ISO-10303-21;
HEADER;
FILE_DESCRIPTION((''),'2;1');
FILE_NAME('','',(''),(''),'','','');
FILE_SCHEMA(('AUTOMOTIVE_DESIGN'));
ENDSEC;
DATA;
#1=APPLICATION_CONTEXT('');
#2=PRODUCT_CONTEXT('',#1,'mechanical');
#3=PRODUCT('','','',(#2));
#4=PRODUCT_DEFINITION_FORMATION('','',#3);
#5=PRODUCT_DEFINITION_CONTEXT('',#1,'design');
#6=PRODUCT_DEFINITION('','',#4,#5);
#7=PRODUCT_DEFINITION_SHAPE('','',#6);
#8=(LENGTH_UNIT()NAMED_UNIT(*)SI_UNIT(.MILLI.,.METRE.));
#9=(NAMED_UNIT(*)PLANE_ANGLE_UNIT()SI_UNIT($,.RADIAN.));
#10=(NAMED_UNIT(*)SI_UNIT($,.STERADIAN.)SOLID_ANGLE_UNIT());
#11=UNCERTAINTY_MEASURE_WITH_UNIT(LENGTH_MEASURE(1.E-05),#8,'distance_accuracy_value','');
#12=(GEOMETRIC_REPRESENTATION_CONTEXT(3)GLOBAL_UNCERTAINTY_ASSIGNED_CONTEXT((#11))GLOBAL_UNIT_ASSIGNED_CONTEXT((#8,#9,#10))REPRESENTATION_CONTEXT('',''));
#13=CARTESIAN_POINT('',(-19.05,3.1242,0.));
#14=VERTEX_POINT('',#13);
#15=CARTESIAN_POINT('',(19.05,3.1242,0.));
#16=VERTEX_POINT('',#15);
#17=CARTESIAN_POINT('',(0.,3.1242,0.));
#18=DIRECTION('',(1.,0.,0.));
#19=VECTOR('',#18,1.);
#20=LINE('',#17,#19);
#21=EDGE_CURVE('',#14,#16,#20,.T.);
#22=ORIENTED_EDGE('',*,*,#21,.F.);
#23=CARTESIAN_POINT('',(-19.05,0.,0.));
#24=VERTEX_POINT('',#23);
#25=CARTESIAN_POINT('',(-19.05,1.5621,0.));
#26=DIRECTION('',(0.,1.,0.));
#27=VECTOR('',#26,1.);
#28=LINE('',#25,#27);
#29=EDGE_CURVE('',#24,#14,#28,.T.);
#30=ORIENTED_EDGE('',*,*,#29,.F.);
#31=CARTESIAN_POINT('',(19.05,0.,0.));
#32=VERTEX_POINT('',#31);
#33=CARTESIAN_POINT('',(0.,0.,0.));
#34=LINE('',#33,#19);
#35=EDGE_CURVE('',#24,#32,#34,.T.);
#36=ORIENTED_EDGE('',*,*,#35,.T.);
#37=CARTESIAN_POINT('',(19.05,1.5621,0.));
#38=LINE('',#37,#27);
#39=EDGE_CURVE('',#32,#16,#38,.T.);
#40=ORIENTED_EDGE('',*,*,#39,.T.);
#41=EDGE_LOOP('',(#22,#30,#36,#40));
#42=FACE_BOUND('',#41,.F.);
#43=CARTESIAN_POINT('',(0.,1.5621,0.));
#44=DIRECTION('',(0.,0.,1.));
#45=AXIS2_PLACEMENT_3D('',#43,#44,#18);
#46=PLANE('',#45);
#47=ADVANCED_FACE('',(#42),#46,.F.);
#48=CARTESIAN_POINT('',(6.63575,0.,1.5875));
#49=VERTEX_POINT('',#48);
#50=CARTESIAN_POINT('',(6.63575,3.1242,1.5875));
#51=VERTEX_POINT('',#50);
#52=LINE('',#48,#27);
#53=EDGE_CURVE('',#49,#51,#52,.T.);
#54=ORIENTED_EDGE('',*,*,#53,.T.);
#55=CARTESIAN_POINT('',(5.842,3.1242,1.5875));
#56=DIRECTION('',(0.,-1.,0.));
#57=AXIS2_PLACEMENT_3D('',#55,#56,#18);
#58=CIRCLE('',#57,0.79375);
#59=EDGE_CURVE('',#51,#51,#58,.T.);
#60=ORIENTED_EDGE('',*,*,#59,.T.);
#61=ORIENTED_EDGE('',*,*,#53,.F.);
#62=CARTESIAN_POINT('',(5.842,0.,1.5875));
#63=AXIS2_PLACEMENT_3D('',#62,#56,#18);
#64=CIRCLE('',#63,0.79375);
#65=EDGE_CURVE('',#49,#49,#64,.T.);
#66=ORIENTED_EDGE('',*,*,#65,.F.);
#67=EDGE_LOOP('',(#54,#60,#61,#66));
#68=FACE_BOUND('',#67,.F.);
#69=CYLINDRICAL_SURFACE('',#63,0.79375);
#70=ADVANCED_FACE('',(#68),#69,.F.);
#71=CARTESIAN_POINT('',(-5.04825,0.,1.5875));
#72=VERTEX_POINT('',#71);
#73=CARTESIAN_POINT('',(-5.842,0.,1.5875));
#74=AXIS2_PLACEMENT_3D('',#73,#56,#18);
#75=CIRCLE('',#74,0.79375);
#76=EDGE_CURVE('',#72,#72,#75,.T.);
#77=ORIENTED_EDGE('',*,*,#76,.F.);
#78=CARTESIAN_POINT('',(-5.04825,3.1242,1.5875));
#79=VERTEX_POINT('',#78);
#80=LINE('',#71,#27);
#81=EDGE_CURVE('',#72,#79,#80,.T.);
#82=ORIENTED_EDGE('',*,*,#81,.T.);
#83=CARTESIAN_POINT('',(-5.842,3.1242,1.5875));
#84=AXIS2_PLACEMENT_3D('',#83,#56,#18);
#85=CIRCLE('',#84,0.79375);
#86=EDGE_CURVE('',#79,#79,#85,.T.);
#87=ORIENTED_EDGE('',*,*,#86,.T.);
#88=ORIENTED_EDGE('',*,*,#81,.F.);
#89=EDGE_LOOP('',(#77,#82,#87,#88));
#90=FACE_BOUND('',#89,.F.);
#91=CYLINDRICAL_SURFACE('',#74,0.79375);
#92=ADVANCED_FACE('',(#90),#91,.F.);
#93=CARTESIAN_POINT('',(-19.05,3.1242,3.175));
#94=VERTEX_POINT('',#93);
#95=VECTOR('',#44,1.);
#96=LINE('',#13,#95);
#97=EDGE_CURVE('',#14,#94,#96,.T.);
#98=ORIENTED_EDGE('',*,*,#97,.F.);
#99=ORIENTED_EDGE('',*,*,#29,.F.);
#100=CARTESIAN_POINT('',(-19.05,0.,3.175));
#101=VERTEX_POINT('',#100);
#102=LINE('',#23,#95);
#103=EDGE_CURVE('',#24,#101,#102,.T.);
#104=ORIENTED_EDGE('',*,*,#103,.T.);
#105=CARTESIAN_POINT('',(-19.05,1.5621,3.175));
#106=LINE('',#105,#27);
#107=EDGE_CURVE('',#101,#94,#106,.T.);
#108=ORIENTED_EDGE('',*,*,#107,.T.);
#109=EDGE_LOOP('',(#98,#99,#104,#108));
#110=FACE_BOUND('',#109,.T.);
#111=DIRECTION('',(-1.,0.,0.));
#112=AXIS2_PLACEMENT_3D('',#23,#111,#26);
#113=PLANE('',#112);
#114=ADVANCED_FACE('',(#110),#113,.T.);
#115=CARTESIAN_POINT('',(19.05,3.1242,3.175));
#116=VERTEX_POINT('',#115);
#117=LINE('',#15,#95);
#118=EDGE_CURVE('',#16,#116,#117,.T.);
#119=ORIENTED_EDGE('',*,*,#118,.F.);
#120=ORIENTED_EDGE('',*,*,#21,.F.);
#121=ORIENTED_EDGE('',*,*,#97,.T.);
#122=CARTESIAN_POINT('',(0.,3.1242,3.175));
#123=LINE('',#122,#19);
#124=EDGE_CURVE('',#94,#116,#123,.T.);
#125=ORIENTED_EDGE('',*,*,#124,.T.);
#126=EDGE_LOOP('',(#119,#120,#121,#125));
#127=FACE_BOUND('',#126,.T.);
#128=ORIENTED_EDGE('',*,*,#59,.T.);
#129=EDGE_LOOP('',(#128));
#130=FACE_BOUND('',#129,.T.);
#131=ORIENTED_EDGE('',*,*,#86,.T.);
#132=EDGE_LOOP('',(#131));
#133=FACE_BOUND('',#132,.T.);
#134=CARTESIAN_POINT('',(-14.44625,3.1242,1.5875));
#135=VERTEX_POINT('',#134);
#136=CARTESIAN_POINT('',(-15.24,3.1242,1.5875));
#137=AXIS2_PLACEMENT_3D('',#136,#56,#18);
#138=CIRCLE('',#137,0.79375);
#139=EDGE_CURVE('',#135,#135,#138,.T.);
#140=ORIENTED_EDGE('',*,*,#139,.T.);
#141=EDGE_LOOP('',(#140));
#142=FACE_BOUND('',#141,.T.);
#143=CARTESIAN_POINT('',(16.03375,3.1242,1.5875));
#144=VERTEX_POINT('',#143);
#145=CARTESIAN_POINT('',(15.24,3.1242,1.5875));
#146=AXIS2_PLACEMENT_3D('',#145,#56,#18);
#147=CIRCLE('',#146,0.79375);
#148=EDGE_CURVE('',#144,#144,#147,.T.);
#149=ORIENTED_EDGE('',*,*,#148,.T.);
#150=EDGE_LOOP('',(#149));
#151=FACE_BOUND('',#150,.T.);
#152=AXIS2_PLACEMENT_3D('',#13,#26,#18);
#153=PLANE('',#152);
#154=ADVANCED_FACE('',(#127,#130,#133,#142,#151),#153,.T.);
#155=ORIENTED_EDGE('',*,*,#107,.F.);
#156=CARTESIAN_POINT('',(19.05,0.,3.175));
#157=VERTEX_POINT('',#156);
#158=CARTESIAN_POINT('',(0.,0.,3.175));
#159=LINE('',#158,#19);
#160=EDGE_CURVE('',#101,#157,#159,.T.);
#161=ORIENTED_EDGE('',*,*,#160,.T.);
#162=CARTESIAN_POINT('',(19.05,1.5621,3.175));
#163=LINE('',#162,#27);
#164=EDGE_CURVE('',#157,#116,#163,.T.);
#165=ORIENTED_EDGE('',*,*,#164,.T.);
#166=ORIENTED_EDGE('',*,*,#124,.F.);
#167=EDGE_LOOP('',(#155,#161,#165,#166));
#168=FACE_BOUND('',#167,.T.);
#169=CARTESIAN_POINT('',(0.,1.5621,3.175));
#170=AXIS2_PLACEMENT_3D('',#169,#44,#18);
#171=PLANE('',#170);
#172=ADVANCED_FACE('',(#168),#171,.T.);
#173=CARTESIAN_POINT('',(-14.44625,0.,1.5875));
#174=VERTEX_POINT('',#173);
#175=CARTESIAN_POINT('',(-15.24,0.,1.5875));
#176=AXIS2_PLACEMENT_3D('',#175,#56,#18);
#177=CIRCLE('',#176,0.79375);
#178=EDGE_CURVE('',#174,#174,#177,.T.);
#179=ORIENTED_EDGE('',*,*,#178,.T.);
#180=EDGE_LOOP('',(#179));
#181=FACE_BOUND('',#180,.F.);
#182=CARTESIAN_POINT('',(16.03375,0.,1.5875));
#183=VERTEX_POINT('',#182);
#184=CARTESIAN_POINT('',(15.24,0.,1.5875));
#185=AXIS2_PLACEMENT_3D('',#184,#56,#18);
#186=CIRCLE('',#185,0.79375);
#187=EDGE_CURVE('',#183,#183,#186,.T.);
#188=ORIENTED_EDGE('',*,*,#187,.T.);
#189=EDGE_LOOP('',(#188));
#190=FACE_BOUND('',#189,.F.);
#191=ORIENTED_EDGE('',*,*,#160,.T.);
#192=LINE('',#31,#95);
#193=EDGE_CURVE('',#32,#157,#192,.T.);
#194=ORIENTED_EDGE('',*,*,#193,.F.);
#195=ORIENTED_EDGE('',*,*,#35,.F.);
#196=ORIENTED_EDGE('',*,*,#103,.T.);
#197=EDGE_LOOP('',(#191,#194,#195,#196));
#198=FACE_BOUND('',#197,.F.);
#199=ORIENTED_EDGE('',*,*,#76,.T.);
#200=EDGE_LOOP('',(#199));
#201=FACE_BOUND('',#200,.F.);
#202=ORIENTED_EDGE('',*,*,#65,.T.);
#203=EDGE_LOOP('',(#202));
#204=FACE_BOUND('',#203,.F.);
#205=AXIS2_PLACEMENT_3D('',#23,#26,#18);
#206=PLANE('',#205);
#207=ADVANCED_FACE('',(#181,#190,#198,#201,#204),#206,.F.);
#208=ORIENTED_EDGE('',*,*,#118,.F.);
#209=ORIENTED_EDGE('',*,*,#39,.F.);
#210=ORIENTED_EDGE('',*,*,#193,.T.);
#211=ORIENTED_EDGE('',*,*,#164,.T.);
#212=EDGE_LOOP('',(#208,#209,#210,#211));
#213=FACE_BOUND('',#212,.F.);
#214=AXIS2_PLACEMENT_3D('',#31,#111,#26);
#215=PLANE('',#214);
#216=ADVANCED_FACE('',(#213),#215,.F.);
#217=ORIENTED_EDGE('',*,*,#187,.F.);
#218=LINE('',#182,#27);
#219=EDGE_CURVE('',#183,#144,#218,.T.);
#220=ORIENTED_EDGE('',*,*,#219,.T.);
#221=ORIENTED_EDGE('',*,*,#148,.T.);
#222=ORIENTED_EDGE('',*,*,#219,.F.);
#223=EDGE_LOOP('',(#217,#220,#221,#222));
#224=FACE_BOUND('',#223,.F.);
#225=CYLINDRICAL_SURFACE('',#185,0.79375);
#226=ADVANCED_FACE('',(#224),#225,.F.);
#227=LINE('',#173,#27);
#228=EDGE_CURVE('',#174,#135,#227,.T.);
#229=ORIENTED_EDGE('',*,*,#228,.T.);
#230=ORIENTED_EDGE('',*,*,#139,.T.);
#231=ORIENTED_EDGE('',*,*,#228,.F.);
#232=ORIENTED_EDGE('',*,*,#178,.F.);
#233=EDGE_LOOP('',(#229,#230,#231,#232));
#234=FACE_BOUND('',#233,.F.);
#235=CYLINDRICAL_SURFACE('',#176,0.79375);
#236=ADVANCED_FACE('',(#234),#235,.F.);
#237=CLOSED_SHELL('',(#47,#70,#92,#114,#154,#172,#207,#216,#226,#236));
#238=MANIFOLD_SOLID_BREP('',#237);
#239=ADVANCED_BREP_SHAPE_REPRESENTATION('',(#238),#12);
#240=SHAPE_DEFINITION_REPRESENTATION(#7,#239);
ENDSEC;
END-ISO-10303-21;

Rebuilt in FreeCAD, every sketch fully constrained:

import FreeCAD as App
import Part
import Sketcher
Q = App.Units.Quantity

doc = App.newDocument("Part")
body = doc.addObject("PartDesign::Body", "Body")

# Sketch on XY plane
sketch1 = body.newObject("Sketcher::SketchObject", "Sketch")
sketch1.AttachmentSupport = (doc.getObject("XY_Plane"), [""])
sketch1.MapMode = "FlatFace"
sketch1.addGeometry(Part.LineSegment(App.Vector(-19.1, 3.1, 0), App.Vector(-19.1, 0, 0)), False)
sketch1.addGeometry(Part.LineSegment(App.Vector(-19.1, 0, 0), App.Vector(19.1, 0, 0)), False)
sketch1.addGeometry(Part.LineSegment(App.Vector(19.1, 0, 0), App.Vector(19.1, 3.1, 0)), False)
sketch1.addGeometry(Part.LineSegment(App.Vector(19.1, 3.1, 0), App.Vector(-19.1, 3.1, 0)), False)
sketch1.addConstraint(Sketcher.Constraint("Coincident", 0, 2, 1, 1))
sketch1.addConstraint(Sketcher.Constraint("Coincident", 1, 2, 2, 1))
sketch1.addConstraint(Sketcher.Constraint("Coincident", 2, 2, 3, 1))
sketch1.addConstraint(Sketcher.Constraint("Coincident", 3, 2, 0, 1))
sketch1.addConstraint(Sketcher.Constraint("Vertical", 0))
sketch1.addConstraint(Sketcher.Constraint("Horizontal", 1))
sketch1.addConstraint(Sketcher.Constraint("Vertical", 2))
sketch1.addConstraint(Sketcher.Constraint("Horizontal", 3))
sketch1.addConstraint(Sketcher.Constraint("Symmetric", 0, 2, 1, 2, -1, 1))
sketch1.addConstraint(Sketcher.Constraint("DistanceX", 1, 1, 1, 2, Q("1.5 in")))
sketch1.addConstraint(Sketcher.Constraint("DistanceY", 0, 2, 0, 1, Q("0.123 in")))
pad1 = body.newObject("PartDesign::Pad", "Pad")
pad1.Profile = sketch1
pad1.Length = Q("0.125 in")

# Sketch on XZ plane
sketch2 = body.newObject("Sketcher::SketchObject", "Sketch001")
sketch2.AttachmentSupport = (doc.getObject("XZ_Plane"), [""])
sketch2.MapMode = "FlatFace"
sketch2.addGeometry(Part.Circle(App.Vector(-15.2, 1.6, 0), App.Vector(0, 0, 1), 0.8), False)
sketch2.addGeometry(Part.Circle(App.Vector(-5.8, 1.6, 0), App.Vector(0, 0, 1), 0.8), False)
sketch2.addGeometry(Part.Circle(App.Vector(5.8, 1.6, 0), App.Vector(0, 0, 1), 0.8), False)
sketch2.addGeometry(Part.Circle(App.Vector(15.2, 1.6, 0), App.Vector(0, 0, 1), 0.8), False)
sketch2.addConstraint(Sketcher.Constraint("Equal", 0, 1))
sketch2.addConstraint(Sketcher.Constraint("Equal", 1, 2))
sketch2.addConstraint(Sketcher.Constraint("Equal", 2, 3))
sketch2.addConstraint(Sketcher.Constraint("Symmetric", 1, 3, 2, 3, -2))
sketch2.addConstraint(Sketcher.Constraint("Symmetric", 0, 3, 3, 3, -2))
sketch2.addConstraint(Sketcher.Constraint("Horizontal", 0, 3, 1, 3))
sketch2.addConstraint(Sketcher.Constraint("Diameter", 0, Q("0.0625 in")))
sketch2.addConstraint(Sketcher.Constraint("DistanceX", 0, 3, -1, 1, Q("0.6 in")))
sketch2.addConstraint(Sketcher.Constraint("DistanceX", 1, 3, -1, 1, Q("0.23 in")))
sketch2.addConstraint(Sketcher.Constraint("DistanceY", -1, 1, 0, 3, Q("0.0625 in")))
pocket1 = body.newObject("PartDesign::Pocket", "Pocket")
pocket1.Profile = sketch2
pocket1.Length = Q("1 in")

doc.recompute()
